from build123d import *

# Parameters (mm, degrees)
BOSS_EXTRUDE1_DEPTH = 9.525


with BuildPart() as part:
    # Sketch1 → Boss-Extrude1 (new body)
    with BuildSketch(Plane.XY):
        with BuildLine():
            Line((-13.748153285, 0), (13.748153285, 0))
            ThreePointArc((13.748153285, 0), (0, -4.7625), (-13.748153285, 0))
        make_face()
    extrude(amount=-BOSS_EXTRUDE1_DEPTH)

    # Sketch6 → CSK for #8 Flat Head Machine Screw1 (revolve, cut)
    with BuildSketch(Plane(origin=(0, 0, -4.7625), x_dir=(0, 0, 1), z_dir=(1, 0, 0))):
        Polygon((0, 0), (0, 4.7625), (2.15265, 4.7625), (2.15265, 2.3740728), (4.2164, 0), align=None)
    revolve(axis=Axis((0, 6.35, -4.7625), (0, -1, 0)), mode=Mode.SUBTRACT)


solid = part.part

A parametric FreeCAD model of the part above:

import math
import FreeCAD as App
import Part
import Sketcher
from FreeCAD import Vector
Q = App.Units.Quantity


def add_polygon(sketch, points):
    """Adds a closed chain of lines whose ends are joined by coincident constraints."""
    first, n = sketch.GeometryCount, len(points)
    for a, b in zip(points, points[1:] + points[:1]):
        sketch.addGeometry(Part.LineSegment(App.Vector(*a, 0), App.Vector(*b, 0)), False)
    for i in range(n):
        sketch.addConstraint(Sketcher.Constraint("Coincident", first + i, 2, first + (i + 1) % n, 1))

doc = App.newDocument("Part")
params = doc.addObject("Spreadsheet::Sheet", "Params")
for row, (alias, value) in enumerate([
    ("sketch1_radius", "0.875 in"),
    ("pad1_length", "0.375 in"),
    ("sketch2_width", "0.1875 in"),
    ("sketch2_height", "0.166 in"),
    ("groove_angle", "360 deg"),
], start=1):
    params.set(f"A{row}", alias)
    params.set(f"B{row}", "=" + value)
    params.setAlias(f"B{row}", alias)

body = doc.addObject("PartDesign::Body", "Body")

# Sketch on XY plane
sketch1 = doc.addObject("Sketcher::SketchObject", "Sketch")
body.addObject(sketch1)
sketch1.AttachmentSupport = (doc.XY_Plane, [""])
sketch1.MapMode = "FlatFace"
sketch1.addGeometry(Part.LineSegment(Vector(13.748153, 0, 0), Vector(-13.748153, 0, 0)), False)
sketch1.addGeometry(Part.ArcOfCircle(Part.Circle(Vector(0, 17.4625, 0), Vector(0, 0, 1), 22.225), math.radians(-128.213211), math.radians(-51.786789)), False)
sketch1.addConstraint(Sketcher.Constraint("Coincident", 0, 1, 1, 2))
sketch1.addConstraint(Sketcher.Constraint("Coincident", 1, 1, 0, 2))
sketch1.addConstraint(Sketcher.Constraint("Horizontal", 0))
sketch1.addConstraint(Sketcher.Constraint("Symmetric", 0, 1, 1, 1, -1, 1))
sketch1.addConstraint(Sketcher.Constraint("Radius", 1, Q("0.875 in")))
sketch1.addConstraint(Sketcher.Constraint("DistanceY", -1, 1, 1, 3, Q("0.6875 in")))
sketch1.setExpression("Constraints[4]", "Params.sketch1_radius")
pad1 = doc.addObject("PartDesign::Pad", "Pad")
body.addObject(pad1)
pad1.Profile = sketch1
pad1.setExpression("Length", "Params.pad1_length")
pad1.Reversed = True

# Sketch on YZ plane
sketch2 = doc.addObject("Sketcher::SketchObject", "Sketch001")
body.addObject(sketch2)
sketch2.AttachmentSupport = (doc.YZ_Plane, [""])
sketch2.MapMode = "FlatFace"
add_polygon(sketch2, [(-4.7625, -4.7625), (0, -4.7625), (0, -0.5461), (-2.374073, -2.60985), (-4.7625, -2.60985)])  # lines 0-4
sketch2.addGeometry(Part.LineSegment(Vector(0, -4.7625, 0), Vector(-4.7625, -4.7625, 0)), True)  # axis
sketch2.addConstraint(Sketcher.Constraint("Horizontal", 0))
sketch2.addConstraint(Sketcher.Constraint("Vertical", 1))
sketch2.addConstraint(Sketcher.Constraint("Horizontal", 3))
sketch2.addConstraint(Sketcher.Constraint("Vertical", 4))
sketch2.addConstraint(Sketcher.Constraint("Horizontal", 5))
sketch2.addConstraint(Sketcher.Constraint("Coincident", 5, 1, 0, 2))
sketch2.addConstraint(Sketcher.Constraint("PointOnObject", 0, 2, -2))
sketch2.addConstraint(Sketcher.Constraint("Vertical", 3, 2, 5, 2))
sketch2.addConstraint(Sketcher.Constraint("Angle", 2, Q("-139 deg")))
sketch2.addConstraint(Sketcher.Constraint("DistanceX", 0, 1, 0, 2, Q("0.1875 in")))
sketch2.addConstraint(Sketcher.Constraint("DistanceY", 1, 1, 1, 2, Q("0.166 in")))
sketch2.addConstraint(Sketcher.Constraint("DistanceY", 0, 2, -1, 1, Q("0.1875 in")))
sketch2.addConstraint(Sketcher.Constraint("DistanceY", 4, 2, 4, 1, Q("2.15265 mm")))
sketch2.setExpression("Constraints[14]", "Params.sketch2_width")
sketch2.setExpression("Constraints[15]", "Params.sketch2_height")
groove = doc.addObject("PartDesign::Groove", "Groove")
body.addObject(groove)
groove.Profile = sketch2
groove.ReferenceAxis = (sketch2, ["Axis0"])
groove.setExpression("Angle", "Params.groove_angle")

doc.recompute()
